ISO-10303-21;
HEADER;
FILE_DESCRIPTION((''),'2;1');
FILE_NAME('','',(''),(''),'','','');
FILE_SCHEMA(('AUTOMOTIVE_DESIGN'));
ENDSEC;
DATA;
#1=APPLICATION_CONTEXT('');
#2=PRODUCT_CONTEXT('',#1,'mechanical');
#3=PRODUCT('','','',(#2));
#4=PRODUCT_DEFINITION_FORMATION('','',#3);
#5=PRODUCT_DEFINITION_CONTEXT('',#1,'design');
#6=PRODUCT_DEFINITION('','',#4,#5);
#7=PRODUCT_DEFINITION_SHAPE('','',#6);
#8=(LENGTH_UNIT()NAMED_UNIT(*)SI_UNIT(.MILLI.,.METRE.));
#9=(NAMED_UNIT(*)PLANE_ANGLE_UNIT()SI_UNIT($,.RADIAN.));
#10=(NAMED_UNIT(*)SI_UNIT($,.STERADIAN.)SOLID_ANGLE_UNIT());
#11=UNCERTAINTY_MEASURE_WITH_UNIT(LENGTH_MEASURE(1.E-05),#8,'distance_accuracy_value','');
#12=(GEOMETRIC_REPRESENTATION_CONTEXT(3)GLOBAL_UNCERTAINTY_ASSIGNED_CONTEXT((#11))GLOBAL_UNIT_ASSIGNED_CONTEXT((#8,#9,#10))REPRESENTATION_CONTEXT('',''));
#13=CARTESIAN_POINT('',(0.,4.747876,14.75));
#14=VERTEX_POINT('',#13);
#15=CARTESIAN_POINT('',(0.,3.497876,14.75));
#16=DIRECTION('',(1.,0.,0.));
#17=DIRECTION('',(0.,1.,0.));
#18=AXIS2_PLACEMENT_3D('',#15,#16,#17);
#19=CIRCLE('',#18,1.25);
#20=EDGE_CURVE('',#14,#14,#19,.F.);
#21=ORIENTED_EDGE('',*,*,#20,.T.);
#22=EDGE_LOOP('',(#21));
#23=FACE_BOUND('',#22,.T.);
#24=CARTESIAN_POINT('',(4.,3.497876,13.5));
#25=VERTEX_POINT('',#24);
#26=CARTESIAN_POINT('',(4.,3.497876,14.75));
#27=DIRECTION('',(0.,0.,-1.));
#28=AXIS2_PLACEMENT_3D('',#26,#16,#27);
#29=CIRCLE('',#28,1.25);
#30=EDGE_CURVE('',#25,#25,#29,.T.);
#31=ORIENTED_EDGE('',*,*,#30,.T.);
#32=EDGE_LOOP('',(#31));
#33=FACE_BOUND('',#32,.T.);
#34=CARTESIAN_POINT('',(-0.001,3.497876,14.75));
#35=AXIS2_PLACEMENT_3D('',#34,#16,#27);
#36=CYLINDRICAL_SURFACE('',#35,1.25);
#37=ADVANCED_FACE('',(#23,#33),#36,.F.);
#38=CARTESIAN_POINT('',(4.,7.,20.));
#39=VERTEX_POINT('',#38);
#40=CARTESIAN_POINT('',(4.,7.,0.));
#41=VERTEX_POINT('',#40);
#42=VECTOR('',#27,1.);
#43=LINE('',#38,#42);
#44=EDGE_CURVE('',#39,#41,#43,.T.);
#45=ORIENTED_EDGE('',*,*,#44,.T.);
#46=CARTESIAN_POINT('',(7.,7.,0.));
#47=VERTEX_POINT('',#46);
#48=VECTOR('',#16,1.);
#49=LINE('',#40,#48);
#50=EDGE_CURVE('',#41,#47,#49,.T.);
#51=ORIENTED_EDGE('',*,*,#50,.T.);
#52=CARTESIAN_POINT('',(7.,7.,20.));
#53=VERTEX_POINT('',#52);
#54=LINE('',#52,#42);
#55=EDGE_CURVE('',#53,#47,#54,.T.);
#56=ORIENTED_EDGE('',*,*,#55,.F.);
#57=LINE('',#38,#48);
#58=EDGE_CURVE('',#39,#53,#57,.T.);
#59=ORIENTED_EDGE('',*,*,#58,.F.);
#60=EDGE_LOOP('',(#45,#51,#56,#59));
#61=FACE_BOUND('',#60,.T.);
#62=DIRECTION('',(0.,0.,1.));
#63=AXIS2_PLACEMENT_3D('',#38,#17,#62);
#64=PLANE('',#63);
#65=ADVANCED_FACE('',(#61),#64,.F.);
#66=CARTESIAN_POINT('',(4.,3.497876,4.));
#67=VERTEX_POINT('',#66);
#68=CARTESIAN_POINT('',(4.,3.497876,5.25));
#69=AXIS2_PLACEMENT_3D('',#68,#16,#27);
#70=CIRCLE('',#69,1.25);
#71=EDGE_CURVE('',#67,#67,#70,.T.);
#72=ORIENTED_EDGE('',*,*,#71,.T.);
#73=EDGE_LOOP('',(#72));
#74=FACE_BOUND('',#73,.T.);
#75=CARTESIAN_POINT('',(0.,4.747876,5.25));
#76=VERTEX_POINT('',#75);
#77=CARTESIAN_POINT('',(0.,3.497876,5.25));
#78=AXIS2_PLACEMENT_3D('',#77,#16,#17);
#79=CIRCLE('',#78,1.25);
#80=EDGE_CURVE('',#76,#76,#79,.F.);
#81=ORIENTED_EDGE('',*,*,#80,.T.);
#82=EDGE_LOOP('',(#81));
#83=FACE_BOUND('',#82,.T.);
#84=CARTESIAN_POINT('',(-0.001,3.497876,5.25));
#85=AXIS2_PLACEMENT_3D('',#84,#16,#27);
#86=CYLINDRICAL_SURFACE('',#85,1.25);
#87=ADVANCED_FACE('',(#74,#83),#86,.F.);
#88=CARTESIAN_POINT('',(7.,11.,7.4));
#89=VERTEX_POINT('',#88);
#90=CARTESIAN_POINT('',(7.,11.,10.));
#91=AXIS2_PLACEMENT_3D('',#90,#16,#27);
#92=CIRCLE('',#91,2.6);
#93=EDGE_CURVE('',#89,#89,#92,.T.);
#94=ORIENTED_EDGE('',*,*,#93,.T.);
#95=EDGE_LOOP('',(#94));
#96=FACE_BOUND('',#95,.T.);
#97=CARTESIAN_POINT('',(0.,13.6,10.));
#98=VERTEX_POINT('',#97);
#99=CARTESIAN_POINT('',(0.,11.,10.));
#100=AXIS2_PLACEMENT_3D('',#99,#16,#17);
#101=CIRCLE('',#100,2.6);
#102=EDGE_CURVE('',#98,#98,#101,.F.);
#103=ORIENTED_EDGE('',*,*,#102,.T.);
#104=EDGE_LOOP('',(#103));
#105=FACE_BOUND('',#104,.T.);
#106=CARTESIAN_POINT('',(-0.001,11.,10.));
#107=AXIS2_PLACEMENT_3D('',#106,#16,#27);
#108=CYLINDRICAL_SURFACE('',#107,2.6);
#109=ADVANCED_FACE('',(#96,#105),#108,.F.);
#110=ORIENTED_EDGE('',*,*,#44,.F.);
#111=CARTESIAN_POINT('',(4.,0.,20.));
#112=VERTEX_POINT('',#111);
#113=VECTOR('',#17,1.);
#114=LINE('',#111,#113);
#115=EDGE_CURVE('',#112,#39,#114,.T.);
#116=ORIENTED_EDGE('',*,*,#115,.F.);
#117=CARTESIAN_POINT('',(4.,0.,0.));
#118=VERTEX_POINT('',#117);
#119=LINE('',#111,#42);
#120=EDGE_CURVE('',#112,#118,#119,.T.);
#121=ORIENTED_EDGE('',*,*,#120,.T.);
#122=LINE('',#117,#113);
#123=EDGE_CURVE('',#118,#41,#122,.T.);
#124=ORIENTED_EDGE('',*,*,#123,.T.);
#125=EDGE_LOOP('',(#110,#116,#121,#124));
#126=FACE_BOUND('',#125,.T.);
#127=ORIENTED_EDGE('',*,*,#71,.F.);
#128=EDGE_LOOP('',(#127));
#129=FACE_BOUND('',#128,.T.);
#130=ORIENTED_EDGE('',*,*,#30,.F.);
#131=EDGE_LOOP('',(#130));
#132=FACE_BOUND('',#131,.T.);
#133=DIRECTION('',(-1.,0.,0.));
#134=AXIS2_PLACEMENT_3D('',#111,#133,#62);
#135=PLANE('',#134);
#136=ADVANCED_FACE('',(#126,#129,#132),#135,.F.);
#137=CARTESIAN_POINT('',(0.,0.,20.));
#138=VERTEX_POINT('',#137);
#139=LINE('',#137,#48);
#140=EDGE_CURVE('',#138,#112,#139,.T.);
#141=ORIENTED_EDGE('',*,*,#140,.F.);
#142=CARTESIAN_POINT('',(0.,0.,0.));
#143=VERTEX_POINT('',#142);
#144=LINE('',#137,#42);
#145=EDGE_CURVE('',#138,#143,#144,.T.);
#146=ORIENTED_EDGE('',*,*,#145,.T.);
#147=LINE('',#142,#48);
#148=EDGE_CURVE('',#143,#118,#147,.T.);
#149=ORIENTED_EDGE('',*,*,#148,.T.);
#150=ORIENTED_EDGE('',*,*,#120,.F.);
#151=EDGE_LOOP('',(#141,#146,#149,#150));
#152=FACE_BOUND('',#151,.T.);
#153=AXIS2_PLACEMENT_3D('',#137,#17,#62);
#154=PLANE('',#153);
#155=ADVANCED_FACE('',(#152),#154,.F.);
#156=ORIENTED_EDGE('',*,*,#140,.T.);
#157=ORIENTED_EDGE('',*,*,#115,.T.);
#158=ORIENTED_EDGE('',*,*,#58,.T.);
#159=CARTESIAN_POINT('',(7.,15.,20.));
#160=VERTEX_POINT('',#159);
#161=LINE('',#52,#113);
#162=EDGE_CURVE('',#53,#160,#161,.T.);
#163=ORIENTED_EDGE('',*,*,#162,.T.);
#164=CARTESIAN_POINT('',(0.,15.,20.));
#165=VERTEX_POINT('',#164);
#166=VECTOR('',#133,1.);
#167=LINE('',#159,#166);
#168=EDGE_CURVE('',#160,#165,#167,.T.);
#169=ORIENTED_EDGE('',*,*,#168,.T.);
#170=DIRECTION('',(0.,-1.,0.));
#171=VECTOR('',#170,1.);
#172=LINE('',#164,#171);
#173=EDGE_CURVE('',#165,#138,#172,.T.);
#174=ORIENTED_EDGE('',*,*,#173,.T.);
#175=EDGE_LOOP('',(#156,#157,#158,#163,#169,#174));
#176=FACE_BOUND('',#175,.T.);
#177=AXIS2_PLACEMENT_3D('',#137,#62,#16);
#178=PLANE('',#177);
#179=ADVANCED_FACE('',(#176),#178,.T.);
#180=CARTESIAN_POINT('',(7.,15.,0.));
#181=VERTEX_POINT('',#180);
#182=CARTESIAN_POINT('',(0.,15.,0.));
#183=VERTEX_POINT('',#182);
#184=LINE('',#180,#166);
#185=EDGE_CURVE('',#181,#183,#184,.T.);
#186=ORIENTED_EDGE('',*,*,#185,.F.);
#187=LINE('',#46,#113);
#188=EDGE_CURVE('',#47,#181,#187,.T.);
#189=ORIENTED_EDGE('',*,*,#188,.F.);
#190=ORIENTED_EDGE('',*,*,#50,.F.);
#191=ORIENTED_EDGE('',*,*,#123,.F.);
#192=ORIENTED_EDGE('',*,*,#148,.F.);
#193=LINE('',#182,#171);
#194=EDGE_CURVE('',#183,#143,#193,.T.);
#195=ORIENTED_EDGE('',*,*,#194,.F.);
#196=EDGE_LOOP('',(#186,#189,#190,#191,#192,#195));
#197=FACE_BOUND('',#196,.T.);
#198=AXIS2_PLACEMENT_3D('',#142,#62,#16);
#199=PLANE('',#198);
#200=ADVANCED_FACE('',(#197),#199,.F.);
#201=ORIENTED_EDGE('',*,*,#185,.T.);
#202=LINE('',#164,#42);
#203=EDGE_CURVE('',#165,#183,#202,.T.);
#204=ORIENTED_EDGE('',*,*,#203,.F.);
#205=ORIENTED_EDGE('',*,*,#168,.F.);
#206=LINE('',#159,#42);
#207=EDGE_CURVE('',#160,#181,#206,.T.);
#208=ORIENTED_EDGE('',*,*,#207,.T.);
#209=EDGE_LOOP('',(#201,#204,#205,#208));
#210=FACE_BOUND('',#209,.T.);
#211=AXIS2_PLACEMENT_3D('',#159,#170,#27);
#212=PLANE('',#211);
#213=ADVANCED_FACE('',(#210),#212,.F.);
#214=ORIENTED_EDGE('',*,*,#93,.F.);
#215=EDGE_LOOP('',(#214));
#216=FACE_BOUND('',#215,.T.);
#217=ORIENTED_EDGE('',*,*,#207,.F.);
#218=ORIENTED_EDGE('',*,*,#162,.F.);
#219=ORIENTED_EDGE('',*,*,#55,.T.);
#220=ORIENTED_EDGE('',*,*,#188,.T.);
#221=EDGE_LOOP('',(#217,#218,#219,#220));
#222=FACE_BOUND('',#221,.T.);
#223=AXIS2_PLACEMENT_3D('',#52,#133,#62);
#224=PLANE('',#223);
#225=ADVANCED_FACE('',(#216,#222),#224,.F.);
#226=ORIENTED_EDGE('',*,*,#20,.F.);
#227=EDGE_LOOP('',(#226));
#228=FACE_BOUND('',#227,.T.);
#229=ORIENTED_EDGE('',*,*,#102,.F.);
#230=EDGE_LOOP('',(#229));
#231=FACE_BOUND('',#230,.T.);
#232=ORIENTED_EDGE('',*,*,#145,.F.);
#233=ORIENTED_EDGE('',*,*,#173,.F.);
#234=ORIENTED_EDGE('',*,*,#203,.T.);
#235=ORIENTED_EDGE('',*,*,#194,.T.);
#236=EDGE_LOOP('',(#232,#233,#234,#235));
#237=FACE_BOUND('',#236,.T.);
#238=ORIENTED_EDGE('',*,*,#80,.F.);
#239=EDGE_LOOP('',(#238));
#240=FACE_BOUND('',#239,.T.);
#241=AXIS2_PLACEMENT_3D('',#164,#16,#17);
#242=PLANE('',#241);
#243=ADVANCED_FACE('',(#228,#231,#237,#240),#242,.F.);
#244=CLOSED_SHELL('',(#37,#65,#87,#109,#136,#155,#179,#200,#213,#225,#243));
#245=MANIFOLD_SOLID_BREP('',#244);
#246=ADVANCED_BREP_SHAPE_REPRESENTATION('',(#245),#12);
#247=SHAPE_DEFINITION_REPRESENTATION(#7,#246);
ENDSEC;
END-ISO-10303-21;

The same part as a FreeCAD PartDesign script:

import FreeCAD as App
import Part
import Sketcher

V = App.Vector
Q = App.Units.Quantity

doc = App.newDocument("Part")
body = doc.addObject("PartDesign::Body", "Body")

# Sketch on XY plane
sketch1 = doc.addObject("Sketcher::SketchObject", "Sketch")
body.addObject(sketch1)
sketch1.AttachmentSupport = (doc.XY_Plane, [""])
sketch1.MapMode = "FlatFace"
sketch1.addGeometry(Part.LineSegment(V(7, 15, 0), V(0, 15, 0)), False)
sketch1.addGeometry(Part.LineSegment(V(0, 15, 0), V(0, 0, 0)), False)
sketch1.addGeometry(Part.LineSegment(V(0, 0, 0), V(4, 0, 0)), False)
sketch1.addGeometry(Part.LineSegment(V(4, 0, 0), V(4, 7, 0)), False)
sketch1.addGeometry(Part.LineSegment(V(4, 7, 0), V(7, 7, 0)), False)
sketch1.addGeometry(Part.LineSegment(V(7, 7, 0), V(7, 15, 0)), False)
sketch1.addConstraint(Sketcher.Constraint("Coincident", 0, 2, 1, 1))
sketch1.addConstraint(Sketcher.Constraint("Coincident", 1, 2, 2, 1))
sketch1.addConstraint(Sketcher.Constraint("Coincident", 2, 2, 3, 1))
sketch1.addConstraint(Sketcher.Constraint("Coincident", 3, 2, 4, 1))
sketch1.addConstraint(Sketcher.Constraint("Coincident", 4, 2, 5, 1))
sketch1.addConstraint(Sketcher.Constraint("Coincident", 5, 2, 0, 1))
sketch1.addConstraint(Sketcher.Constraint("Horizontal", 0))
sketch1.addConstraint(Sketcher.Constraint("Vertical", 1))
sketch1.addConstraint(Sketcher.Constraint("Horizontal", 2))
sketch1.addConstraint(Sketcher.Constraint("Vertical", 3))
sketch1.addConstraint(Sketcher.Constraint("Horizontal", 4))
sketch1.addConstraint(Sketcher.Constraint("Vertical", 5))
sketch1.addConstraint(Sketcher.Constraint("Coincident", 1, 2, -1, 1))
sketch1.addConstraint(Sketcher.Constraint("Equal", 0, 3))
sketch1.addConstraint(Sketcher.Constraint("DistanceX", 0, 2, 0, 1, Q("7 mm")))
sketch1.addConstraint(Sketcher.Constraint("DistanceX", 2, 1, 2, 2, Q("4 mm")))
sketch1.addConstraint(Sketcher.Constraint("DistanceY", 1, 2, 1, 1, Q("15 mm")))
pad1 = doc.addObject("PartDesign::Pad", "Pad")
body.addObject(pad1)
pad1.Profile = sketch1
pad1.Length = 20

# Sketch on YZ plane
sketch2 = doc.addObject("Sketcher::SketchObject", "Sketch001")
body.addObject(sketch2)
sketch2.AttachmentSupport = (doc.YZ_Plane, [""])
sketch2.MapMode = "FlatFace"
sketch2.AttachmentOffset = App.Placement(V(0, 0, 7), App.Rotation())
sketch2.addGeometry(Part.Circle(V(11, 10, 0), V(0, 0, 1), 2.6), False)
sketch2.addConstraint(Sketcher.Constraint("Diameter", 0, Q("5.2 mm")))
sketch2.addConstraint(Sketcher.Constraint("DistanceX", -1, 1, 0, 3, Q("11 mm")))
sketch2.addConstraint(Sketcher.Constraint("DistanceY", -1, 1, 0, 3, Q("10 mm")))
pocket1 = doc.addObject("PartDesign::Pocket", "Pocket")
body.addObject(pocket1)
pocket1.Profile = sketch2
pocket1.Type = "UpToFirst"

# Sketch on YZ plane
sketch3 = doc.addObject("Sketcher::SketchObject", "Sketch002")
body.addObject(sketch3)
sketch3.AttachmentSupport = (doc.YZ_Plane, [""])
sketch3.MapMode = "FlatFace"
sketch3.AttachmentOffset = App.Placement(V(0, 0, 4), App.Rotation())
sketch3.addGeometry(Part.Circle(V(3.5, 14.8, 0), V(0, 0, 1), 1.2), False)
sketch3.addConstraint(Sketcher.Constraint("Diameter", 0, Q("2.5 mm")))
sketch3.addConstraint(Sketcher.Constraint("DistanceY", -1, 1, 0, 3, Q("14.75 mm")))
sketch3.addConstraint(Sketcher.Constraint("DistanceX", -1, 1, 0, 3, Q("3.497876 mm")))
pocket2 = doc.addObject("PartDesign::Pocket", "Pocket001")
body.addObject(pocket2)
pocket2.Profile = sketch3
pocket2.Type = "UpToFirst"

# Sketch on YZ plane
sketch4 = doc.addObject("Sketcher::SketchObject", "Sketch003")
body.addObject(sketch4)
sketch4.AttachmentSupport = (doc.YZ_Plane, [""])
sketch4.MapMode = "FlatFace"
sketch4.AttachmentOffset = App.Placement(V(0, 0, 4), App.Rotation())
sketch4.addGeometry(Part.Circle(V(3.5, 5.2, 0), V(0, 0, 1), 1.2), False)
sketch4.addConstraint(Sketcher.Constraint("Diameter", 0, Q("2.5 mm")))
sketch4.addConstraint(Sketcher.Constraint("DistanceY", -1, 1, 0, 3, Q("5.25 mm")))
sketch4.addConstraint(Sketcher.Constraint("DistanceX", -1, 1, 0, 3, Q("3.497876 mm")))
pocket3 = doc.addObject("PartDesign::Pocket", "Pocket002")
body.addObject(pocket3)
pocket3.Profile = sketch4
pocket3.Type = "UpToFirst"

doc.recompute()
